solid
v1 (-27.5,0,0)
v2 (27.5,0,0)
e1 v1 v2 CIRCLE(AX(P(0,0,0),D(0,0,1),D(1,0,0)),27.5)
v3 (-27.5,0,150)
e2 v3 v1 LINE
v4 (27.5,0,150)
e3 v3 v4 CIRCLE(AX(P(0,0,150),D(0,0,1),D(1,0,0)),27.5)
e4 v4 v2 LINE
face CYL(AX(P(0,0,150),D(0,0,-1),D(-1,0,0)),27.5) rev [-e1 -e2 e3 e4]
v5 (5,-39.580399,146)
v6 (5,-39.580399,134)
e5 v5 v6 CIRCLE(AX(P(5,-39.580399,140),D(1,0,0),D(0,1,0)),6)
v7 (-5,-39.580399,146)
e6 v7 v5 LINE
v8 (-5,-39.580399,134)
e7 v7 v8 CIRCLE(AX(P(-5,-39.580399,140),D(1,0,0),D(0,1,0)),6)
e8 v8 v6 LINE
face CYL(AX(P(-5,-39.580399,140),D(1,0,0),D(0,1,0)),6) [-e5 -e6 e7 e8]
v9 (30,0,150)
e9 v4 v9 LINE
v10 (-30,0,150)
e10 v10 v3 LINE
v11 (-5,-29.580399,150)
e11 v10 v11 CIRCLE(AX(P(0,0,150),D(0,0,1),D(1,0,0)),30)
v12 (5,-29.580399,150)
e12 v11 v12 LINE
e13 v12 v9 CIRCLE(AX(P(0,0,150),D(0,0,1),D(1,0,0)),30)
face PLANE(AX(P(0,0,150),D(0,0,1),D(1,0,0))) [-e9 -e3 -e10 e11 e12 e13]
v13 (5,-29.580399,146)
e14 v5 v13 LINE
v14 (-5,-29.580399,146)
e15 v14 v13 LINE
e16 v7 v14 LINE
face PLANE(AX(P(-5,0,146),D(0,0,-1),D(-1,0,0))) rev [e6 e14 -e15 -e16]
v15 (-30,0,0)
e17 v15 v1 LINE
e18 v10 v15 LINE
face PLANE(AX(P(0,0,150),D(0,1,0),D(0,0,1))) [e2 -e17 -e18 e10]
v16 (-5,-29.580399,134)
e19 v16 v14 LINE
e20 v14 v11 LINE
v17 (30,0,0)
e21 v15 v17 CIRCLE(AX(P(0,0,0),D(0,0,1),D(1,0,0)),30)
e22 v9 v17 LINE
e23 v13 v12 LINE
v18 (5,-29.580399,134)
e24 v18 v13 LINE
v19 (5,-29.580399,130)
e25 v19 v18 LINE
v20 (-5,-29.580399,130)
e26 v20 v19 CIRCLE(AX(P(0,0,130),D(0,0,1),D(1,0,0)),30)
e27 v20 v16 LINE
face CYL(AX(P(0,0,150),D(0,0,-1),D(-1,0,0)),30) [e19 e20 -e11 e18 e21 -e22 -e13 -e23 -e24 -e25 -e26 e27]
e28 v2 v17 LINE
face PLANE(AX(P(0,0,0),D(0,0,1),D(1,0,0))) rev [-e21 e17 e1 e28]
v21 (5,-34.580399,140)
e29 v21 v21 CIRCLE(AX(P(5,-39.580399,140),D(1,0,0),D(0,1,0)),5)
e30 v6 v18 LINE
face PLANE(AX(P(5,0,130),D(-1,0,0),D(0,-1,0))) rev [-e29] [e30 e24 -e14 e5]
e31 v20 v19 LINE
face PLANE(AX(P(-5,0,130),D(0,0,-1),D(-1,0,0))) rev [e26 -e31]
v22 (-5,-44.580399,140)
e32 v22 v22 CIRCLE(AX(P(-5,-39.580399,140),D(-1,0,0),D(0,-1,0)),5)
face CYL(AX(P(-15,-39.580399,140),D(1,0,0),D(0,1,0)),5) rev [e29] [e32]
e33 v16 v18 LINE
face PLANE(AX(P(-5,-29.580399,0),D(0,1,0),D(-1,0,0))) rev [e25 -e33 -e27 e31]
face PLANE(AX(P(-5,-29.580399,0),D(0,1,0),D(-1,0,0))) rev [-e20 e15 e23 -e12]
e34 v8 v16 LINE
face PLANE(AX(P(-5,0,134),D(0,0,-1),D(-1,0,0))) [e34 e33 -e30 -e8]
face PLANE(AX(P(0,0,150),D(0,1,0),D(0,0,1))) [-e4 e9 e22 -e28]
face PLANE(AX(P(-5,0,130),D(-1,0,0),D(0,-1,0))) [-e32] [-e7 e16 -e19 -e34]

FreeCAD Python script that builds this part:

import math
import FreeCAD as App
import Part
import Sketcher
from FreeCAD import Vector

doc = App.newDocument("Part")
body = doc.addObject("PartDesign::Body", "Body")

sketch1 = doc.addObject("Sketcher::SketchObject", "Sketch")
body.addObject(sketch1)
sketch1.AttachmentSupport = (doc.XY_Plane, [""])
sketch1.MapMode = "FlatFace"
sketch1.addGeometry([
    Part.LineSegment(Vector(30, 0, 0), Vector(27.5, 0, 0)),
    Part.ArcOfCircle(Part.Circle(Vector(0, 0, 0), Vector(0, 0, 1), 27.5), math.radians(180), math.radians(360)),
    Part.LineSegment(Vector(-27.5, 0, 0), Vector(-30, 0, 0)),
    Part.ArcOfCircle(Part.Circle(Vector(0, 0, 0), Vector(0, 0, 1), 30), math.radians(180), math.radians(360)),
], False)
sketch1.addConstraint([
    Sketcher.Constraint("Coincident", 0, 2, 1, 2),
    Sketcher.Constraint("Coincident", 1, 1, 2, 1),
    Sketcher.Constraint("Coincident", 2, 2, 3, 1),
    Sketcher.Constraint("Coincident", 3, 2, 0, 1),
    Sketcher.Constraint("Horizontal", 0),
    Sketcher.Constraint("Horizontal", 2),
    Sketcher.Constraint("Coincident", 1, 3, -1, 1),
    Sketcher.Constraint("Coincident", 3, 3, -1, 1),
    Sketcher.Constraint("PointOnObject", 0, 2, -1),
    Sketcher.Constraint("PointOnObject", 1, 1, -1),
    Sketcher.Constraint("Radius", 3, 30.0),
    Sketcher.Constraint("Radius", 1, 27.5),
])
pad1 = doc.addObject("PartDesign::Pad", "Pad")
body.addObject(pad1)
pad1.Profile = sketch1
pad1.Length = 150

sketch2 = doc.addObject("Sketcher::SketchObject", "Sketch001")
body.addObject(sketch2)
sketch2.AttachmentSupport = (doc.XY_Plane, [""])
sketch2.MapMode = "FlatFace"
sketch2.AttachmentOffset = App.Placement(Vector(0, 0, 130), App.Rotation())
sketch2.addGeometry([
    Part.ArcOfCircle(Part.Circle(Vector(0, 0, 0), Vector(0, 0, 1), 30), math.radians(-99.59), math.radians(-90)),
    Part.LineSegment(Vector(-5, -30, 0), Vector(-5, -48, 0)),
    Part.LineSegment(Vector(-5, -48, 0), Vector(5, -48, 0)),
    Part.LineSegment(Vector(5, -48, 0), Vector(5, -30, 0)),
    Part.ArcOfCircle(Part.Circle(Vector(0, 0, 0), Vector(0, 0, 1), 30), math.radians(-90), math.radians(-80.41)),
], False)
sketch2.addConstraint([
    Sketcher.Constraint("Coincident", 0, 1, 1, 1),
    Sketcher.Constraint("Coincident", 1, 2, 2, 1),
    Sketcher.Constraint("Coincident", 2, 2, 3, 1),
    Sketcher.Constraint("Coincident", 3, 2, 4, 2),
    Sketcher.Constraint("Tangent", 4, 1, 0, 2),
    Sketcher.Constraint("Vertical", 1),
    Sketcher.Constraint("Horizontal", 2),
    Sketcher.Constraint("Vertical", 3),
    Sketcher.Constraint("Coincident", 0, 3, -1, 1),
    Sketcher.Constraint("Equal", 0, 4),
    Sketcher.Constraint("PointOnObject", 4, 1, -2),
    Sketcher.Constraint("Horizontal", 0, 1, 3, 2),
    Sketcher.Constraint("Radius", 0, 30.0),
    Sketcher.Constraint("DistanceX", 2, 1, 2, 2, 10.0),
    Sketcher.Constraint("DistanceY", 1, 2, -1, 1, 48.0),
])
pad2 = doc.addObject("PartDesign::Pad", "Pad001")
body.addObject(pad2)
pad2.Profile = sketch2
pad2.Length = 20

sketch3 = doc.addObject("Sketcher::SketchObject", "Sketch002")
body.addObject(sketch3)
sketch3.AttachmentSupport = (doc.YZ_Plane, [""])
sketch3.MapMode = "FlatFace"
sketch3.AttachmentOffset = App.Placement(Vector(0, 0, 5), App.Rotation())
sketch3.addGeometry(Part.Circle(Vector(-40, 140, 0), Vector(0, 0, 1), 5), False)
sketch3.addConstraint([
    Sketcher.Constraint("Diameter", 0, 10.0),
    Sketcher.Constraint("DistanceY", -1, 1, 0, 3, 140.0),
    Sketcher.Constraint("DistanceX", 0, 3, -1, 1, 39.580399),
])
pocket1 = doc.addObject("PartDesign::Pocket", "Pocket")
body.addObject(pocket1)
pocket1.Profile = sketch3
pocket1.Length = 20

sketch4 = doc.addObject("Sketcher::SketchObject", "Sketch003")
body.addObject(sketch4)
sketch4.AttachmentSupport = (doc.YZ_Plane, [""])
sketch4.MapMode = "FlatFace"
sketch4.AttachmentOffset = App.Placement(Vector(0, 0, 5), App.Rotation())
sketch4.addGeometry([
    Part.ArcOfCircle(Part.Circle(Vector(-39.6, 140, 0), Vector(0, 0, 1), 6), math.radians(90), math.radians(270)),
    Part.LineSegment(Vector(-39.6, 146, 0), Vector(-29.6, 146, 0)),
    Part.LineSegment(Vector(-29.6, 146, 0), Vector(-29.6, 150, 0)),
    Part.LineSegment(Vector(-29.6, 150, 0), Vector(-48, 150, 0)),
    Part.LineSegment(Vector(-48, 150, 0), Vector(-48, 130, 0)),
    Part.LineSegment(Vector(-48, 130, 0), Vector(-29.6, 130, 0)),
    Part.LineSegment(Vector(-29.6, 130, 0), Vector(-29.6, 134, 0)),
    Part.LineSegment(Vector(-29.6, 134, 0), Vector(-39.6, 134, 0)),
], False)
sketch4.addConstraint([
    Sketcher.Constraint("Tangent", 0, 1, 1, 1),
    Sketcher.Constraint("Coincident", 1, 2, 2, 1),
    Sketcher.Constraint("Coincident", 2, 2, 3, 1),
    Sketcher.Constraint("Coincident", 3, 2, 4, 1),
    Sketcher.Constraint("Coincident", 4, 2, 5, 1),
    Sketcher.Constraint("Coincident", 5, 2, 6, 1),
    Sketcher.Constraint("Coincident", 6, 2, 7, 1),
    Sketcher.Constraint("Tangent", 7, 2, 0, 2),
    Sketcher.Constraint("Horizontal", 1),
    Sketcher.Constraint("Vertical", 2),
    Sketcher.Constraint("Horizontal", 3),
    Sketcher.Constraint("Vertical", 4),
    Sketcher.Constraint("Horizontal", 5),
    Sketcher.Constraint("Vertical", 6),
    Sketcher.Constraint("Horizontal", 7),
    Sketcher.Constraint("Vertical", 2, 2, 5, 2),
    Sketcher.Constraint("Equal", 2, 6),
    Sketcher.Constraint("Radius", 0, 6.0),
    Sketcher.Constraint("DistanceX", 1, 1, 1, 2, 10.0),
    Sketcher.Constraint("DistanceY", 2, 1, 2, 2, 4.0),
    Sketcher.Constraint("DistanceY", -1, 1, 0, 3, 140.0),
    Sketcher.Constraint("DistanceX", 3, 2, -1, 1, 48.0),
    Sketcher.Constraint("DistanceX", 3, 2, 3, 1, 18.419601),
])
pocket2 = doc.addObject("PartDesign::Pocket", "Pocket001")
body.addObject(pocket2)
pocket2.Profile = sketch4
pocket2.Length = 10

doc.recompute()
